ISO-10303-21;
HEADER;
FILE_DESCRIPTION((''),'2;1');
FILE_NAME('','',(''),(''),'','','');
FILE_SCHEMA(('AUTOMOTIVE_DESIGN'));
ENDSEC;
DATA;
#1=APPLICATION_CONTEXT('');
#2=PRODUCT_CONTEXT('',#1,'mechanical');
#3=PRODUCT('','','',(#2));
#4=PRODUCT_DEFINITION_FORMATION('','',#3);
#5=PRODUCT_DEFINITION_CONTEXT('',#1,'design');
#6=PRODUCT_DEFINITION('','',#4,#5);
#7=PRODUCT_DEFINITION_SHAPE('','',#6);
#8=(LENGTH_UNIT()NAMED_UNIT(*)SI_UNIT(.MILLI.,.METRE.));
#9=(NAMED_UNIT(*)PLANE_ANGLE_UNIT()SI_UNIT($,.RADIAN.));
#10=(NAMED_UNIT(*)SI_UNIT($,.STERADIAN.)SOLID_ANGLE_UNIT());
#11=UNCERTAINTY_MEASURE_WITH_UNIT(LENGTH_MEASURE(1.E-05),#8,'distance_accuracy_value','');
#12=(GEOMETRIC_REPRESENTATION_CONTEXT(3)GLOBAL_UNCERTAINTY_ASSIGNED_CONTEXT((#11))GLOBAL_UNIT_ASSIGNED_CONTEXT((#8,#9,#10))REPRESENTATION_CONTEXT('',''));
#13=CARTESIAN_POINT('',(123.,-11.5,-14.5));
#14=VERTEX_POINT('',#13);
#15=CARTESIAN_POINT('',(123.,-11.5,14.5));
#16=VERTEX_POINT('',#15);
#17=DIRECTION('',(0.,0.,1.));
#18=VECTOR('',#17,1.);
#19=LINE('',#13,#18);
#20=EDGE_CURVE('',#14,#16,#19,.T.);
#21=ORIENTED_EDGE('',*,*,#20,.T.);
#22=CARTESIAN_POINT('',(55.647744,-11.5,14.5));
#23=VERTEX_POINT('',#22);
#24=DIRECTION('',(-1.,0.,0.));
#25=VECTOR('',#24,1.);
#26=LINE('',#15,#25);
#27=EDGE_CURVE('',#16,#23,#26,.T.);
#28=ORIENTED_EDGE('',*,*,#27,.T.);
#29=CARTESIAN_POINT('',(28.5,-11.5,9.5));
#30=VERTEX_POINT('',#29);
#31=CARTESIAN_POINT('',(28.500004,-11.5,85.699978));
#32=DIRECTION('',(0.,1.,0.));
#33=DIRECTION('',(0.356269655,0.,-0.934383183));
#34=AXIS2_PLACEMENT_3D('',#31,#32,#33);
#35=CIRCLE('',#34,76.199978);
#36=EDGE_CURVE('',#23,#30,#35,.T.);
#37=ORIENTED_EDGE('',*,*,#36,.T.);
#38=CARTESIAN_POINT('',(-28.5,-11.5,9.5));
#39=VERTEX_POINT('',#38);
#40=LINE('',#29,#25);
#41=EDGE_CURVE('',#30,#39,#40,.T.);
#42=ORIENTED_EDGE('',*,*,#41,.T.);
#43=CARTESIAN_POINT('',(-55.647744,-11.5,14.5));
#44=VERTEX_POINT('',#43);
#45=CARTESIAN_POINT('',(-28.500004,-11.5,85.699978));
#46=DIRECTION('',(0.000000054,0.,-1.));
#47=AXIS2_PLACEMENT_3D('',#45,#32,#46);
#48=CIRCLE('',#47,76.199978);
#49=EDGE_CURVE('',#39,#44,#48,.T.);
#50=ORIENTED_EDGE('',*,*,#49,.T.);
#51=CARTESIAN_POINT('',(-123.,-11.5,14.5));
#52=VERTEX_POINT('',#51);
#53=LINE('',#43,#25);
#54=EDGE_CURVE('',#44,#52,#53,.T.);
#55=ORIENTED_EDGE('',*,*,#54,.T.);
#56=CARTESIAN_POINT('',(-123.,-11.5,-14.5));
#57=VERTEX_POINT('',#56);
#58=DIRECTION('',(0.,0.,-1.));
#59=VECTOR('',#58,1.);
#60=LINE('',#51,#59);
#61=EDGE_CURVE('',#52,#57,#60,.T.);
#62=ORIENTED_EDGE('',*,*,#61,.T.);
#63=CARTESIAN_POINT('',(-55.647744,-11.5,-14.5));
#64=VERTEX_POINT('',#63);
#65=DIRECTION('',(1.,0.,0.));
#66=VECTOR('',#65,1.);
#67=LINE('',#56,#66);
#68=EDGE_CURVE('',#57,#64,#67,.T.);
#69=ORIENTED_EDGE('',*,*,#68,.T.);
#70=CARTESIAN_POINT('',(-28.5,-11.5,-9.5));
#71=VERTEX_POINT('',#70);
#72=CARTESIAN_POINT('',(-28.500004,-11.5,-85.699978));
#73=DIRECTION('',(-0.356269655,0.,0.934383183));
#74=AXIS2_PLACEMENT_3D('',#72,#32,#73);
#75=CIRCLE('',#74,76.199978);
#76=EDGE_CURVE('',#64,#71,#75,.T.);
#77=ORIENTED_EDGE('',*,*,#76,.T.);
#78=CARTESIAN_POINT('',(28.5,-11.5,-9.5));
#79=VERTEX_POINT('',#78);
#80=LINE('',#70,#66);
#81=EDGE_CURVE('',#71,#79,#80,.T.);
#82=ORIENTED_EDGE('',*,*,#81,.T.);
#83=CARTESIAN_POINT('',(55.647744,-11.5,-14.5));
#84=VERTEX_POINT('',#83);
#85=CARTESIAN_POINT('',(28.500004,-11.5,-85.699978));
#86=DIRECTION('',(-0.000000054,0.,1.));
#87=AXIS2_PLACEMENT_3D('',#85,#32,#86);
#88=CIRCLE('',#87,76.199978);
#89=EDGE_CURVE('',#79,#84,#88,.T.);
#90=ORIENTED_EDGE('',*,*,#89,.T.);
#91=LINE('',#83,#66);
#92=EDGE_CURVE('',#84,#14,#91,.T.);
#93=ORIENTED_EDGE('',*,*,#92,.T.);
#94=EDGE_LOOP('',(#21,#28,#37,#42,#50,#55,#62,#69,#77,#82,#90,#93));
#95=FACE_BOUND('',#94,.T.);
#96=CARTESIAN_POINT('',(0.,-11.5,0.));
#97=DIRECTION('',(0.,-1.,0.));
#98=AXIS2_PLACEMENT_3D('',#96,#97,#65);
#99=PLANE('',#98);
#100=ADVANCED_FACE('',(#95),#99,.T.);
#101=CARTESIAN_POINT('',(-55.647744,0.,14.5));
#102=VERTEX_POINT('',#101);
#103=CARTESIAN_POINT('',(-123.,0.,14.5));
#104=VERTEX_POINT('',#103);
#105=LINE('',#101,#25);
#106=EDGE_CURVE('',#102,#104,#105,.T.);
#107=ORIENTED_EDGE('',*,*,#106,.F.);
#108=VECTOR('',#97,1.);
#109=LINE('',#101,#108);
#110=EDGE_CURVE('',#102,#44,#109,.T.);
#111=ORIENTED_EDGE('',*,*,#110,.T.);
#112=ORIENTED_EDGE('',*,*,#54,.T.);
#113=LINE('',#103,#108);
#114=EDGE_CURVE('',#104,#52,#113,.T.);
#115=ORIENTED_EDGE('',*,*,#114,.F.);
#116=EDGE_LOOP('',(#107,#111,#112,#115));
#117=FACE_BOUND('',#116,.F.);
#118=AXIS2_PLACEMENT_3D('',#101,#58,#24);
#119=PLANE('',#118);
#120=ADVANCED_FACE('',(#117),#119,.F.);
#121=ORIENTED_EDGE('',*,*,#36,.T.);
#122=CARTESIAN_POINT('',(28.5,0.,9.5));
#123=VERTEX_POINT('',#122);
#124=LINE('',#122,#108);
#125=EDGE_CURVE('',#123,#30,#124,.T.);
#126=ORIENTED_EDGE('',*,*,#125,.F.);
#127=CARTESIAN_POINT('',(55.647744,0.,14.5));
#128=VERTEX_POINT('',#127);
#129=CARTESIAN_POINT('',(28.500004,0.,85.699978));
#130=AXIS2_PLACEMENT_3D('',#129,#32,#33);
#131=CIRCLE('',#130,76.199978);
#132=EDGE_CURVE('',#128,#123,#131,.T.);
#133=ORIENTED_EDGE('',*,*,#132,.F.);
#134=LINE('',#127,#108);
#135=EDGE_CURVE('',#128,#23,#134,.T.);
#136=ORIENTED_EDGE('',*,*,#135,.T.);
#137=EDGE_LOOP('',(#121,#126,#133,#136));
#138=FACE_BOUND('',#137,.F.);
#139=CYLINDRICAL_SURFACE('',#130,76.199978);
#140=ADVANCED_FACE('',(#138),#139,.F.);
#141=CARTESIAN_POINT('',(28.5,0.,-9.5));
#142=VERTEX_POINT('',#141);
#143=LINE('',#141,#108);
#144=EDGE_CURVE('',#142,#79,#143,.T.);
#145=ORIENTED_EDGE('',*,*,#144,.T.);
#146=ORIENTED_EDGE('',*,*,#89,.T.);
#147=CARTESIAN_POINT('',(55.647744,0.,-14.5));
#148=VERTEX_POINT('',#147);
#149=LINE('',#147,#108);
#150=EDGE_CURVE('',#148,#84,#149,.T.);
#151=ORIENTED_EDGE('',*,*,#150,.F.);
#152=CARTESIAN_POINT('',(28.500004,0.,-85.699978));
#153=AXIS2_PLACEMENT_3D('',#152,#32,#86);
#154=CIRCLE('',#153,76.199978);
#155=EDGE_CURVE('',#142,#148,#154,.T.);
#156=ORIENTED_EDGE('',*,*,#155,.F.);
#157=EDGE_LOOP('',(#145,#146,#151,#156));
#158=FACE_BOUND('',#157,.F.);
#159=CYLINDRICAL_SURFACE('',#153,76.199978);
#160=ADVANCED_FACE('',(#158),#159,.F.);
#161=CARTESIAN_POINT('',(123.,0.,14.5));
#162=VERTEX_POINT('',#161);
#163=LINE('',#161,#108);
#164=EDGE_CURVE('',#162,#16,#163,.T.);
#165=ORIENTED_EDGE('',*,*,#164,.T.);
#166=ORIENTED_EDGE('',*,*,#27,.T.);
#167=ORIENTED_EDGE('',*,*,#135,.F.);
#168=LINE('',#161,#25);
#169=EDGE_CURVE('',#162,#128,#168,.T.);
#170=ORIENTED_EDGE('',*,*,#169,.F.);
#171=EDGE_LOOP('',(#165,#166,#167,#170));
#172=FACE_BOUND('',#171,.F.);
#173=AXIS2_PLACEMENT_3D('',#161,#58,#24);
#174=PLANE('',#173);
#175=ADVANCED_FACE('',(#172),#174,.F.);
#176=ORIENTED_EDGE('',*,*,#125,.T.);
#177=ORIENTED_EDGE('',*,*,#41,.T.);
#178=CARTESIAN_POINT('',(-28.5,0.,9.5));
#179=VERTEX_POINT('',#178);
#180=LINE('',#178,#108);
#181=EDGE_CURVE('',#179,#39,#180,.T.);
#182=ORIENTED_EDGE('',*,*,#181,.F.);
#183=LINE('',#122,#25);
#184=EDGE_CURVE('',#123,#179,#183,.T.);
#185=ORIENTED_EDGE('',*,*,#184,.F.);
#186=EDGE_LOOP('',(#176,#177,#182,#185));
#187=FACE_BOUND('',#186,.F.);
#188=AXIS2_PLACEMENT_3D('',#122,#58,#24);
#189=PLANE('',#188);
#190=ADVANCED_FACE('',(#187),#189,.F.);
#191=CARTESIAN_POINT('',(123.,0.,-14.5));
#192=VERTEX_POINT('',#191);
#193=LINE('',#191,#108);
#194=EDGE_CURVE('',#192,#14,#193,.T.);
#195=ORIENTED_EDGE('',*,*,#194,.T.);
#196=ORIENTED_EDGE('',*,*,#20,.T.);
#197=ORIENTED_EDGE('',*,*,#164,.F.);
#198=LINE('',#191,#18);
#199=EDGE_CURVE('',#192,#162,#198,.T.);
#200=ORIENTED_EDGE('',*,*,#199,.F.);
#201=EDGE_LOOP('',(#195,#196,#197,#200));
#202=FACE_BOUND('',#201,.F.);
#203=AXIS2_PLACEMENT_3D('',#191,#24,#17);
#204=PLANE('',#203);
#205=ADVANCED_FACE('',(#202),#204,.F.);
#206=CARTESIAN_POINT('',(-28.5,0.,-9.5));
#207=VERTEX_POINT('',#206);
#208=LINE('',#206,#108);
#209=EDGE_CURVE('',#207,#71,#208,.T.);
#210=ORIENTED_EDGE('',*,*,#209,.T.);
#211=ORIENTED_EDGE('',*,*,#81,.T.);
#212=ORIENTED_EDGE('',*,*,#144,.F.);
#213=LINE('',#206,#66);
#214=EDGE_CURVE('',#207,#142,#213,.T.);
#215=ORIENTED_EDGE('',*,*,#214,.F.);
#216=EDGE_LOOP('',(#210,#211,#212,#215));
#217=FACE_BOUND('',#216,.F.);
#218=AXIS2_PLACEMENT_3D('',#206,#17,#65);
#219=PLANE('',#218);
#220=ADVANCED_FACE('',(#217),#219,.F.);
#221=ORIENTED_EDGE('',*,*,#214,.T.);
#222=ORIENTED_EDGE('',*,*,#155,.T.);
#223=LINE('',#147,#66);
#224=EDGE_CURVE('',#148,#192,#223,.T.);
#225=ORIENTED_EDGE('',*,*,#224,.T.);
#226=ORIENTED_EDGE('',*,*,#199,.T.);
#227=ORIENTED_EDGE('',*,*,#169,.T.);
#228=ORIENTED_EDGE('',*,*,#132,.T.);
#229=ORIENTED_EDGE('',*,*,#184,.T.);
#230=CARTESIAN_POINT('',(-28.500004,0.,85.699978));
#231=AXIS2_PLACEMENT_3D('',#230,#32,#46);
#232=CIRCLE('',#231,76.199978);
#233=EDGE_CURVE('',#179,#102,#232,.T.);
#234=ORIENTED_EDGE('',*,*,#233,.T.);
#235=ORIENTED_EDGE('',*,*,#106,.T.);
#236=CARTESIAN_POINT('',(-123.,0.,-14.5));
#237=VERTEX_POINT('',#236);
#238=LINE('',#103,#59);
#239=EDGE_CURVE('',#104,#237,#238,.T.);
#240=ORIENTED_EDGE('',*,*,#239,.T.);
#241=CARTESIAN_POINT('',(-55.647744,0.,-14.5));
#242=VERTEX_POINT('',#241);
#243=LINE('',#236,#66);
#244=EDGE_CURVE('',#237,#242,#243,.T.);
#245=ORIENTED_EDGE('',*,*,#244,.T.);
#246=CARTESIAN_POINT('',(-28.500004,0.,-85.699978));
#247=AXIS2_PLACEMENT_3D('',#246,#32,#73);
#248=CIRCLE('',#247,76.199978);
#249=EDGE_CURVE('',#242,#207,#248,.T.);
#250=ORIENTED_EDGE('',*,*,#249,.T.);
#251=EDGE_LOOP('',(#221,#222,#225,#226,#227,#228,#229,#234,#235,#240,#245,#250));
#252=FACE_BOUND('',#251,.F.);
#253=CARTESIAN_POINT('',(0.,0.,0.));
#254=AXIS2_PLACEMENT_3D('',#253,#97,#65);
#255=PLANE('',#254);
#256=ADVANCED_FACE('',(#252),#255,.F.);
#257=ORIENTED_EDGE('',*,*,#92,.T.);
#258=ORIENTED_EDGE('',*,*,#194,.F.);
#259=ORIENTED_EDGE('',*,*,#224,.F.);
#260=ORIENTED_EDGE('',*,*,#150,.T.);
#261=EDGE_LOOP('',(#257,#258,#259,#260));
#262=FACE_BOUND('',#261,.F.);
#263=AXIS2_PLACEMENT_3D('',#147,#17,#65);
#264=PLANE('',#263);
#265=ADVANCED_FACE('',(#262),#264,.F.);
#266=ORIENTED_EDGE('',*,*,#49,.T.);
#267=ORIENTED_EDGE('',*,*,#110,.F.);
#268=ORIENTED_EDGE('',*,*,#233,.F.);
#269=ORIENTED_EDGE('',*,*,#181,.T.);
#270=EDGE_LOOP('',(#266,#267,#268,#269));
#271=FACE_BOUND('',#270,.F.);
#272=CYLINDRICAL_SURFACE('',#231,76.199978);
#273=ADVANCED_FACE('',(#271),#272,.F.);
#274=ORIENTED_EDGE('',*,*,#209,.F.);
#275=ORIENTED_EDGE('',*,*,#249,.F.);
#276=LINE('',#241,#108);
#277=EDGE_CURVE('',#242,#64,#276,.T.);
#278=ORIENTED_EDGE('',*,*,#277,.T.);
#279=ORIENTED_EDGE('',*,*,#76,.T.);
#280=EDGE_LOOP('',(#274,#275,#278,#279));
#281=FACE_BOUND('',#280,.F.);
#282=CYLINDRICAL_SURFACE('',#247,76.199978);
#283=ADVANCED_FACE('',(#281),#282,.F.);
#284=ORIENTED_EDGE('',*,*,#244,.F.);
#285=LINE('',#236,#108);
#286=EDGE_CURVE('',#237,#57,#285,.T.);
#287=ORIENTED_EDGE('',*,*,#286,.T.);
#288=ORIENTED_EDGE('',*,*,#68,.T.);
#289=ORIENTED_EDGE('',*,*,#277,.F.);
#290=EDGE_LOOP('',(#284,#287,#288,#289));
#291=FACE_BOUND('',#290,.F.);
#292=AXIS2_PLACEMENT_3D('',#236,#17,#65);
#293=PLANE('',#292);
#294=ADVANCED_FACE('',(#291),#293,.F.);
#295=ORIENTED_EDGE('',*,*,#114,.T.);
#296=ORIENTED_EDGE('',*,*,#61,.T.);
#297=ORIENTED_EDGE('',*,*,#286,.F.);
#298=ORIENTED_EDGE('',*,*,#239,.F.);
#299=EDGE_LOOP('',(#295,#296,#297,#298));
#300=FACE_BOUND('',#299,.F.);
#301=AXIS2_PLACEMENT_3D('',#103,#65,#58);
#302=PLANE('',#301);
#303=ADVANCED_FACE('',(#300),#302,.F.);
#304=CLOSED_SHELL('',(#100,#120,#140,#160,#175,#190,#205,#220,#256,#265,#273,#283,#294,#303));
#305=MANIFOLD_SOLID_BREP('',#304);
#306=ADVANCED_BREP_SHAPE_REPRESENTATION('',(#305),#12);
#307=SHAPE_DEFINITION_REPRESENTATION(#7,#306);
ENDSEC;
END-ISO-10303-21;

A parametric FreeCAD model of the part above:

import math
import FreeCAD as App
import Part
import Sketcher

V = App.Vector
Q = App.Units.Quantity

doc = App.newDocument("Part")
body = doc.addObject("PartDesign::Body", "Body")

# Sketch on XZ plane
sketch1 = body.newObject("Sketcher::SketchObject", "Sketch")
sketch1.AttachmentSupport = (doc.getObject("XZ_Plane"), [""])
sketch1.MapMode = "FlatFace"
sketch1.addGeometry([
    Part.LineSegment(V(28.5, 9.5, 0), V(-28.5, 9.5, 0)),  # 0
    Part.ArcOfCircle(Part.Circle(V(-28.500004, 85.699978, 0), V(0, 0, 1), 76.199978), math.radians(-110.871279), math.radians(-89.999997)),  # 1
    Part.LineSegment(V(-55.647744, 14.5, 0), V(-123, 14.5, 0)),  # 2
    Part.LineSegment(V(-123, 14.5, 0), V(-123, -14.5, 0)),  # 3
    Part.LineSegment(V(-123, -14.5, 0), V(-55.647744, -14.5, 0)),  # 4
    Part.ArcOfCircle(Part.Circle(V(-28.500004, -85.699978, 0), V(0, 0, 1), 76.199978), math.radians(89.999997), math.radians(110.871279)),  # 5
    Part.LineSegment(V(-28.5, -9.5, 0), V(28.5, -9.5, 0)),  # 6
    Part.ArcOfCircle(Part.Circle(V(28.500004, -85.699978, 0), V(0, 0, 1), 76.199978), math.radians(69.128721), math.radians(90.000003)),  # 7
    Part.LineSegment(V(55.647744, -14.5, 0), V(123, -14.5, 0)),  # 8
    Part.LineSegment(V(123, -14.5, 0), V(123, 14.5, 0)),  # 9
    Part.LineSegment(V(123, 14.5, 0), V(55.647744, 14.5, 0)),  # 10
    Part.ArcOfCircle(Part.Circle(V(28.500004, 85.699978, 0), V(0, 0, 1), 76.199978), math.radians(-90.000003), math.radians(-69.128721)),  # 11
], False)
sketch1.addConstraint([
    Sketcher.Constraint("Tangent", 0, 2, 1, 2),
    Sketcher.Constraint("Coincident", 1, 1, 2, 1),
    Sketcher.Constraint("Coincident", 2, 2, 3, 1),
    Sketcher.Constraint("Coincident", 3, 2, 4, 1),
    Sketcher.Constraint("Coincident", 4, 2, 5, 2),
    Sketcher.Constraint("Tangent", 5, 1, 6, 1),
    Sketcher.Constraint("Tangent", 6, 2, 7, 2),
    Sketcher.Constraint("Coincident", 7, 1, 8, 1),
    Sketcher.Constraint("Coincident", 8, 2, 9, 1),
    Sketcher.Constraint("Coincident", 9, 2, 10, 1),
    Sketcher.Constraint("Coincident", 10, 2, 11, 2),
    Sketcher.Constraint("Tangent", 11, 1, 0, 1),
    Sketcher.Constraint("Horizontal", 0),
    Sketcher.Constraint("Horizontal", 2),
    Sketcher.Constraint("Vertical", 3),
    Sketcher.Constraint("Horizontal", 4),
    Sketcher.Constraint("Horizontal", 6),
    Sketcher.Constraint("Horizontal", 8),
    Sketcher.Constraint("Vertical", 9),
    Sketcher.Constraint("Horizontal", 10),
    Sketcher.Constraint("Equal", 1, 5),
    Sketcher.Constraint("Equal", 5, 7),
    Sketcher.Constraint("Equal", 7, 11),
    Sketcher.Constraint("Symmetric", 1, 3, 7, 3, -1, 1),
    Sketcher.Constraint("Symmetric", 2, 2, 8, 2, -1, 1),
    Sketcher.Constraint("Symmetric", 4, 2, 10, 2, -1, 1),
    Sketcher.Constraint("Symmetric", 4, 2, 7, 1, -2),
    Sketcher.Constraint("DistanceX", 0, 2, 0, 1, Q("57 mm")),
    Sketcher.Constraint("DistanceY", 3, 2, 3, 1, Q("29 mm")),
    Sketcher.Constraint("DistanceX", 2, 2, -1, 1, Q("123 mm")),
    Sketcher.Constraint("DistanceY", 0, 2, 1, 1, Q("5 mm")),
    Sketcher.Constraint("Radius", 1, Q("76.199978 mm")),
])
pad1 = body.newObject("PartDesign::Pad", "Pad")
pad1.Profile = sketch1
pad1.Length = 11.5

doc.recompute()
